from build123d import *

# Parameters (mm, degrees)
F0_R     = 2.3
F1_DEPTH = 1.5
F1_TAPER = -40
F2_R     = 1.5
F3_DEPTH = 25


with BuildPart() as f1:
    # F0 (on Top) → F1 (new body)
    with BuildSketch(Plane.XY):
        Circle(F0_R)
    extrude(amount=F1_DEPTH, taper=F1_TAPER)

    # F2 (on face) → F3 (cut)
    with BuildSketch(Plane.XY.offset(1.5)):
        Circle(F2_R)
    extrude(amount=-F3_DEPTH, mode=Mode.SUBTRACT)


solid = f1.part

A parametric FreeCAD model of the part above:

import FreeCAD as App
import Part
import Sketcher

V = App.Vector

doc = App.newDocument("Part")
params = doc.addObject("Spreadsheet::Sheet", "Params")
for row, (alias, value) in enumerate([
    ("sketch1_diameter", "4.6 mm"),
    ("pad1_length", "1.5 mm"),
    ("pad1_taper", "40 deg"),
    ("sketch2_diameter", "3 mm"),
    ("pocket1_length", "25 mm"),
], start=1):
    params.set(f"A{row}", alias)
    params.set(f"B{row}", "=" + value)
    params.setAlias(f"B{row}", alias)

body = doc.addObject("PartDesign::Body", "Body")

sketch1 = doc.addObject("Sketcher::SketchObject", "Sketch")
body.addObject(sketch1)
sketch1.AttachmentSupport = (doc.XY_Plane, [""])
sketch1.MapMode = "FlatFace"
sketch1.addGeometry(Part.Circle(V(0, 0, 0), V(0, 0, 1), 2.3), False)
sketch1.addConstraint(Sketcher.Constraint("Coincident", 0, 3, -1, 1))
sketch1.addConstraint(Sketcher.Constraint("Diameter", 0, 4.6))
sketch1.setExpression("Constraints[1]", "Params.sketch1_diameter")
pad1 = doc.addObject("PartDesign::Pad", "Pad")
body.addObject(pad1)
pad1.Profile = sketch1
pad1.setExpression("Length", "Params.pad1_length")
pad1.setExpression("TaperAngle", "Params.pad1_taper")

sketch2 = doc.addObject("Sketcher::SketchObject", "Sketch001")
body.addObject(sketch2)
sketch2.AttachmentSupport = (doc.XY_Plane, [""])
sketch2.MapMode = "FlatFace"
sketch2.AttachmentOffset = App.Placement(V(0, 0, 1.5), App.Rotation())
sketch2.addGeometry(Part.Circle(V(0, 0, 0), V(0, 0, 1), 1.5), False)
sketch2.addConstraint(Sketcher.Constraint("Coincident", 0, 3, -1, 1))
sketch2.addConstraint(Sketcher.Constraint("Diameter", 0, 3.0))
sketch2.setExpression("Constraints[1]", "Params.sketch2_diameter")
pocket1 = doc.addObject("PartDesign::Pocket", "Pocket")
body.addObject(pocket1)
pocket1.Profile = sketch2
pocket1.setExpression("Length", "Params.pocket1_length")

doc.recompute()
